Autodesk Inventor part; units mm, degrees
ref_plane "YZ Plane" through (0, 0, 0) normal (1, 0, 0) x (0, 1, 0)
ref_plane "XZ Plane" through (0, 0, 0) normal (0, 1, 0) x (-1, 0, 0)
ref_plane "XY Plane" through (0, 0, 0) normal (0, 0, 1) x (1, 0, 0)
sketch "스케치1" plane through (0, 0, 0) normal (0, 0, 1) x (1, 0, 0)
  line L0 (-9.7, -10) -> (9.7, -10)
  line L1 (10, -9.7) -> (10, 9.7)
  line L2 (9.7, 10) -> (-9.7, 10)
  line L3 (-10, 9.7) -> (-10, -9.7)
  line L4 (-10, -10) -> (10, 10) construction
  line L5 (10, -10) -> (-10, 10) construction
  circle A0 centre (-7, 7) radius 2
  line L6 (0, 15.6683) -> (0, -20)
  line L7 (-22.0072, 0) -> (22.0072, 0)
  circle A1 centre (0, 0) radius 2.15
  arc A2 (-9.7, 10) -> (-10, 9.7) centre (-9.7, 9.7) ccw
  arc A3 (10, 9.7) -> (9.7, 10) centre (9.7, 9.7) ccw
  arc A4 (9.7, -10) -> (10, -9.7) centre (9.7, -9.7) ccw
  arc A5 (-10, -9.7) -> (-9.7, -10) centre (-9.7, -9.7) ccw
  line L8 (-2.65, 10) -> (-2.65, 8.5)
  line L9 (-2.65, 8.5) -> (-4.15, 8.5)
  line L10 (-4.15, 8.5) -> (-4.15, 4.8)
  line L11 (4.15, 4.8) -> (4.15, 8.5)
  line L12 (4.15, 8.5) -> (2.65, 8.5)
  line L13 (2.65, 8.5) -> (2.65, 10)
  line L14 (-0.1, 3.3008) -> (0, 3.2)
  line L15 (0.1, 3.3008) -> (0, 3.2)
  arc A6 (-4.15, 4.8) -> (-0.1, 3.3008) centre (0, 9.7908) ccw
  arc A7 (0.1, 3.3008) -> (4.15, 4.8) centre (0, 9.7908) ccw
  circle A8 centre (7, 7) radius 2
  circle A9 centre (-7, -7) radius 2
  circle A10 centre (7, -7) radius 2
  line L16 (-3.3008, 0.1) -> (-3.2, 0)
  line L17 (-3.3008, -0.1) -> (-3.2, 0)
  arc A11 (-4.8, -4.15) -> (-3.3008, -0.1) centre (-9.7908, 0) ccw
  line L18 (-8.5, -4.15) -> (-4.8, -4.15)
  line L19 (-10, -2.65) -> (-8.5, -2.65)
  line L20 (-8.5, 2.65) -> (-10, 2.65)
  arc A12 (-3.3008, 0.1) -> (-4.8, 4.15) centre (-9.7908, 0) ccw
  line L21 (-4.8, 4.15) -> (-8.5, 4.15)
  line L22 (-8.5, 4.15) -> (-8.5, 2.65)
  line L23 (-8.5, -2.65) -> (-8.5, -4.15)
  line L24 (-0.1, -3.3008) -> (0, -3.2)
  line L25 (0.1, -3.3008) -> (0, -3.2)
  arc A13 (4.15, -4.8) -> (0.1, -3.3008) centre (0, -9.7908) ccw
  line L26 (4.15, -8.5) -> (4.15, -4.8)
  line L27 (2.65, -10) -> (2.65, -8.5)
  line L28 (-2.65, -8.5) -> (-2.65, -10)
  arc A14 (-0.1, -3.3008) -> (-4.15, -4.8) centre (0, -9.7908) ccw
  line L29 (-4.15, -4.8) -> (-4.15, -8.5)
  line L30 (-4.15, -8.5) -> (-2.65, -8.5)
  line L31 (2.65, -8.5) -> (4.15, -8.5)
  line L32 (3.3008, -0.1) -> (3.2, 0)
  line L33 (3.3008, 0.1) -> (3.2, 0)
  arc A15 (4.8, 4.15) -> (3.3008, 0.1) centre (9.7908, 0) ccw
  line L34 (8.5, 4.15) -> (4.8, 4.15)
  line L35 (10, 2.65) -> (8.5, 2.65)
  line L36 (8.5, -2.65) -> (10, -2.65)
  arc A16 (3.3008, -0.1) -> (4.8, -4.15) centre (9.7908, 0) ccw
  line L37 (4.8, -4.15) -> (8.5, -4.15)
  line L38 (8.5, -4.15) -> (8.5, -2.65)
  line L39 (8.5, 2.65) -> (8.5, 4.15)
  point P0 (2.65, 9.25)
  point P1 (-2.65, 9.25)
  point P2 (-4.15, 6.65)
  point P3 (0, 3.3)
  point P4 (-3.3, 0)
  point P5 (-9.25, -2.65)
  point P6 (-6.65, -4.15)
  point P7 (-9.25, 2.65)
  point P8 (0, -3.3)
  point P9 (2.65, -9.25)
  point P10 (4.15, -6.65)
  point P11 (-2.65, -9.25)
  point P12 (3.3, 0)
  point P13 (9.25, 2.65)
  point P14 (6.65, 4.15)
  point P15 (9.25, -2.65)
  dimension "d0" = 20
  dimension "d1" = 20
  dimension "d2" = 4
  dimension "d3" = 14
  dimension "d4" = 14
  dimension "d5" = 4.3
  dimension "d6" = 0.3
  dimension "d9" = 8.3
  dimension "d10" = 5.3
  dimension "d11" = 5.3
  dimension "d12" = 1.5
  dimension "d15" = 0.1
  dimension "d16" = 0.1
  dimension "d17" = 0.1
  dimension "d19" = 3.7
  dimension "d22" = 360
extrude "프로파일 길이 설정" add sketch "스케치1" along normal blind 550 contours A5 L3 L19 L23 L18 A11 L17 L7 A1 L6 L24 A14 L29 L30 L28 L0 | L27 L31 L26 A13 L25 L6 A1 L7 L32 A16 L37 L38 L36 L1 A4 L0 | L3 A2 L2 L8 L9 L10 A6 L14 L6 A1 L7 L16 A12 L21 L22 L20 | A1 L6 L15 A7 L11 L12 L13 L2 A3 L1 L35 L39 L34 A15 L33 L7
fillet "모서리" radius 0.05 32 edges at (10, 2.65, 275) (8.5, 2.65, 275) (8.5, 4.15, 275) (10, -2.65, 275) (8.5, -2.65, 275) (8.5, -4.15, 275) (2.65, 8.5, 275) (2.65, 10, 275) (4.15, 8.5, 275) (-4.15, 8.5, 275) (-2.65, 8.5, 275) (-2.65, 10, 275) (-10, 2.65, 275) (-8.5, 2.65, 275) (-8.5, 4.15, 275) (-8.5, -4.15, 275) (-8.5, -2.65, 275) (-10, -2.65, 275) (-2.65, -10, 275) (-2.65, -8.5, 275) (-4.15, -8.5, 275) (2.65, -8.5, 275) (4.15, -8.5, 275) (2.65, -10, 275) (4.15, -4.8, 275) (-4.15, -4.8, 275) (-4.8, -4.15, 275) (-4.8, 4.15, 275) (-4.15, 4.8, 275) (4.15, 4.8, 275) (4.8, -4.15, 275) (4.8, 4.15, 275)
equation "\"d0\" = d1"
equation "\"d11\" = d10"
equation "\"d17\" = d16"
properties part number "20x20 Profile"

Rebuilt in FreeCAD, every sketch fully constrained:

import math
import FreeCAD as App
import Part
import Sketcher


def edges_at(feature, points):
    """Names of the edges that pass closest to the given points."""
    edges = feature.Shape.Edges
    near = lambda p: min(range(len(edges)), key=lambda i: edges[i].distToShape(Part.Vertex(*p))[0])
    return sorted({f"Edge{near(p) + 1}" for p in points})

doc = App.newDocument("Part")
body = doc.addObject("PartDesign::Body", "Body")

# Sketch on XY plane
sketch1 = body.newObject("Sketcher::SketchObject", "Sketch")
sketch1.AttachmentSupport = (doc.getObject("XY_Plane"), [""])
sketch1.MapMode = "FlatFace"
sketch1.addGeometry([
    Part.ArcOfCircle(Part.Circle(App.Vector(-9.7, -9.7, 0), App.Vector(0, 0, 1), 0.3), math.radians(180), math.radians(270)),  # 0
    Part.LineSegment(App.Vector(-9.7, -10, 0), App.Vector(-2.65, -10, 0)),  # 1
    Part.LineSegment(App.Vector(-2.65, -10, 0), App.Vector(-2.65, -8.5, 0)),  # 2
    Part.LineSegment(App.Vector(-2.65, -8.5, 0), App.Vector(-4.15, -8.5, 0)),  # 3
    Part.LineSegment(App.Vector(-4.15, -8.5, 0), App.Vector(-4.15, -4.8, 0)),  # 4
    Part.ArcOfCircle(Part.Circle(App.Vector(0, -9.7908, 0), App.Vector(0, 0, 1), 6.490808), math.radians(90.882762), math.radians(129.74454)),  # 5
    Part.LineSegment(App.Vector(-0.1, -3.3008, 0), App.Vector(0, -3.2, 0)),  # 6
    Part.LineSegment(App.Vector(0, -3.2, 0), App.Vector(0.1, -3.3008, 0)),  # 7
    Part.ArcOfCircle(Part.Circle(App.Vector(0, -9.7908, 0), App.Vector(0, 0, 1), 6.49077), math.radians(50.25546), math.radians(89.117238)),  # 8
    Part.LineSegment(App.Vector(4.15, -4.8, 0), App.Vector(4.15, -8.5, 0)),  # 9
    Part.LineSegment(App.Vector(4.15, -8.5, 0), App.Vector(2.65, -8.5, 0)),  # 10
    Part.LineSegment(App.Vector(2.65, -8.5, 0), App.Vector(2.65, -10, 0)),  # 11
    Part.LineSegment(App.Vector(2.65, -10, 0), App.Vector(9.7, -10, 0)),  # 12
    Part.ArcOfCircle(Part.Circle(App.Vector(9.7, -9.7, 0), App.Vector(0, 0, 1), 0.3), math.radians(-90), math.radians(0)),  # 13
    Part.LineSegment(App.Vector(10, -9.7, 0), App.Vector(10, -2.65, 0)),  # 14
    Part.LineSegment(App.Vector(10, -2.65, 0), App.Vector(8.5, -2.65, 0)),  # 15
    Part.LineSegment(App.Vector(8.5, -2.65, 0), App.Vector(8.5, -4.15, 0)),  # 16
    Part.LineSegment(App.Vector(8.5, -4.15, 0), App.Vector(4.8, -4.15, 0)),  # 17
    Part.ArcOfCircle(Part.Circle(App.Vector(9.7908, 0, 0), App.Vector(0, 0, 1), 6.490808), math.radians(-179.117238), math.radians(-140.25546)),  # 18
    Part.LineSegment(App.Vector(3.3008, -0.1, 0), App.Vector(3.2, 0, 0)),  # 19
    Part.LineSegment(App.Vector(3.2, 0, 0), App.Vector(3.3008, 0.1, 0)),  # 20
    Part.ArcOfCircle(Part.Circle(App.Vector(9.7908, 0, 0), App.Vector(0, 0, 1), 6.49077), math.radians(140.25546), math.radians(179.117238)),  # 21
    Part.LineSegment(App.Vector(4.8, 4.15, 0), App.Vector(8.5, 4.15, 0)),  # 22
    Part.LineSegment(App.Vector(8.5, 4.15, 0), App.Vector(8.5, 2.65, 0)),  # 23
    Part.LineSegment(App.Vector(8.5, 2.65, 0), App.Vector(10, 2.65, 0)),  # 24
    Part.LineSegment(App.Vector(10, 2.65, 0), App.Vector(10, 9.7, 0)),  # 25
    Part.ArcOfCircle(Part.Circle(App.Vector(9.7, 9.7, 0), App.Vector(0, 0, 1), 0.3), math.radians(0), math.radians(90)),  # 26
    Part.LineSegment(App.Vector(9.7, 10, 0), App.Vector(2.65, 10, 0)),  # 27
    Part.LineSegment(App.Vector(2.65, 10, 0), App.Vector(2.65, 8.5, 0)),  # 28
    Part.LineSegment(App.Vector(2.65, 8.5, 0), App.Vector(4.15, 8.5, 0)),  # 29
    Part.LineSegment(App.Vector(4.15, 8.5, 0), App.Vector(4.15, 4.8, 0)),  # 30
    Part.ArcOfCircle(Part.Circle(App.Vector(0, 9.7908, 0), App.Vector(0, 0, 1), 6.490808), math.radians(-89.117238), math.radians(-50.25546)),  # 31
    Part.LineSegment(App.Vector(0.1, 3.3008, 0), App.Vector(0, 3.2, 0)),  # 32
    Part.LineSegment(App.Vector(0, 3.2, 0), App.Vector(-0.1, 3.3008, 0)),  # 33
    Part.ArcOfCircle(Part.Circle(App.Vector(0, 9.7908, 0), App.Vector(0, 0, 1), 6.49077), math.radians(-129.74454), math.radians(-90.882762)),  # 34
    Part.LineSegment(App.Vector(-4.15, 4.8, 0), App.Vector(-4.15, 8.5, 0)),  # 35
    Part.LineSegment(App.Vector(-4.15, 8.5, 0), App.Vector(-2.65, 8.5, 0)),  # 36
    Part.LineSegment(App.Vector(-2.65, 8.5, 0), App.Vector(-2.65, 10, 0)),  # 37
    Part.LineSegment(App.Vector(-2.65, 10, 0), App.Vector(-9.7, 10, 0)),  # 38
    Part.ArcOfCircle(Part.Circle(App.Vector(-9.7, 9.7, 0), App.Vector(0, 0, 1), 0.3), math.radians(90), math.radians(180)),  # 39
    Part.LineSegment(App.Vector(-10, 9.7, 0), App.Vector(-10, 2.65, 0)),  # 40
    Part.LineSegment(App.Vector(-10, 2.65, 0), App.Vector(-8.5, 2.65, 0)),  # 41
    Part.LineSegment(App.Vector(-8.5, 2.65, 0), App.Vector(-8.5, 4.15, 0)),  # 42
    Part.LineSegment(App.Vector(-8.5, 4.15, 0), App.Vector(-4.8, 4.15, 0)),  # 43
    Part.ArcOfCircle(Part.Circle(App.Vector(-9.7908, 0, 0), App.Vector(0, 0, 1), 6.490808), math.radians(0.882762), math.radians(39.74454)),  # 44
    Part.LineSegment(App.Vector(-3.3008, 0.1, 0), App.Vector(-3.2, 0, 0)),  # 45
    Part.LineSegment(App.Vector(-3.2, 0, 0), App.Vector(-3.3008, -0.1, 0)),  # 46
    Part.ArcOfCircle(Part.Circle(App.Vector(-9.7908, 0, 0), App.Vector(0, 0, 1), 6.49077), math.radians(-39.74454), math.radians(-0.882762)),  # 47
    Part.LineSegment(App.Vector(-4.8, -4.15, 0), App.Vector(-8.5, -4.15, 0)),  # 48
    Part.LineSegment(App.Vector(-8.5, -4.15, 0), App.Vector(-8.5, -2.65, 0)),  # 49
    Part.LineSegment(App.Vector(-8.5, -2.65, 0), App.Vector(-10, -2.65, 0)),  # 50
    Part.LineSegment(App.Vector(-10, -2.65, 0), App.Vector(-10, -9.7, 0)),  # 51
    Part.Circle(App.Vector(0, 0, 0), App.Vector(0, 0, 1), 2.15),  # 52
    Part.Circle(App.Vector(-7, -7, 0), App.Vector(0, 0, 1), 2),  # 53
    Part.Circle(App.Vector(-7, 7, 0), App.Vector(0, 0, 1), 2),  # 54
    Part.Circle(App.Vector(7, -7, 0), App.Vector(0, 0, 1), 2),  # 55
    Part.Circle(App.Vector(7, 7, 0), App.Vector(0, 0, 1), 2),  # 56
], False)
sketch1.addConstraint([
    Sketcher.Constraint("Tangent", 0, 2, 1, 1),
    Sketcher.Constraint("Coincident", 1, 2, 2, 1),
    Sketcher.Constraint("Coincident", 2, 2, 3, 1),
    Sketcher.Constraint("Coincident", 3, 2, 4, 1),
    Sketcher.Constraint("Coincident", 4, 2, 5, 2),
    Sketcher.Constraint("Coincident", 5, 1, 6, 1),
    Sketcher.Constraint("Coincident", 6, 2, 7, 1),
    Sketcher.Constraint("Coincident", 7, 2, 8, 2),
    Sketcher.Constraint("Coincident", 8, 1, 9, 1),
    Sketcher.Constraint("Coincident", 9, 2, 10, 1),
    Sketcher.Constraint("Coincident", 10, 2, 11, 1),
    Sketcher.Constraint("Coincident", 11, 2, 12, 1),
    Sketcher.Constraint("Tangent", 12, 2, 13, 1),
    Sketcher.Constraint("Tangent", 13, 2, 14, 1),
    Sketcher.Constraint("Coincident", 14, 2, 15, 1),
    Sketcher.Constraint("Coincident", 15, 2, 16, 1),
    Sketcher.Constraint("Coincident", 16, 2, 17, 1),
    Sketcher.Constraint("Coincident", 17, 2, 18, 2),
    Sketcher.Constraint("Coincident", 18, 1, 19, 1),
    Sketcher.Constraint("Coincident", 19, 2, 20, 1),
    Sketcher.Constraint("Coincident", 20, 2, 21, 2),
    Sketcher.Constraint("Coincident", 21, 1, 22, 1),
    Sketcher.Constraint("Coincident", 22, 2, 23, 1),
    Sketcher.Constraint("Coincident", 23, 2, 24, 1),
    Sketcher.Constraint("Coincident", 24, 2, 25, 1),
    Sketcher.Constraint("Tangent", 25, 2, 26, 1),
    Sketcher.Constraint("Tangent", 26, 2, 27, 1),
    Sketcher.Constraint("Coincident", 27, 2, 28, 1),
    Sketcher.Constraint("Coincident", 28, 2, 29, 1),
    Sketcher.Constraint("Coincident", 29, 2, 30, 1),
    Sketcher.Constraint("Coincident", 30, 2, 31, 2),
    Sketcher.Constraint("Coincident", 31, 1, 32, 1),
    Sketcher.Constraint("Coincident", 32, 2, 33, 1),
    Sketcher.Constraint("Coincident", 33, 2, 34, 2),
    Sketcher.Constraint("Coincident", 34, 1, 35, 1),
    Sketcher.Constraint("Coincident", 35, 2, 36, 1),
    Sketcher.Constraint("Coincident", 36, 2, 37, 1),
    Sketcher.Constraint("Coincident", 37, 2, 38, 1),
    Sketcher.Constraint("Tangent", 38, 2, 39, 1),
    Sketcher.Constraint("Tangent", 39, 2, 40, 1),
    Sketcher.Constraint("Coincident", 40, 2, 41, 1),
    Sketcher.Constraint("Coincident", 41, 2, 42, 1),
    Sketcher.Constraint("Coincident", 42, 2, 43, 1),
    Sketcher.Constraint("Coincident", 43, 2, 44, 2),
    Sketcher.Constraint("Coincident", 44, 1, 45, 1),
    Sketcher.Constraint("Coincident", 45, 2, 46, 1),
    Sketcher.Constraint("Coincident", 46, 2, 47, 2),
    Sketcher.Constraint("Coincident", 47, 1, 48, 1),
    Sketcher.Constraint("Coincident", 48, 2, 49, 1),
    Sketcher.Constraint("Coincident", 49, 2, 50, 1),
    Sketcher.Constraint("Coincident", 50, 2, 51, 1),
    Sketcher.Constraint("Tangent", 51, 2, 0, 1),
    Sketcher.Constraint("Horizontal", 1),
    Sketcher.Constraint("Vertical", 2),
    Sketcher.Constraint("Horizontal", 3),
    Sketcher.Constraint("Vertical", 4),
    Sketcher.Constraint("Vertical", 9),
    Sketcher.Constraint("Horizontal", 10),
    Sketcher.Constraint("Vertical", 11),
    Sketcher.Constraint("Horizontal", 12),
    Sketcher.Constraint("Vertical", 14),
    Sketcher.Constraint("Horizontal", 15),
    Sketcher.Constraint("Vertical", 16),
    Sketcher.Constraint("Horizontal", 17),
    Sketcher.Constraint("Horizontal", 22),
    Sketcher.Constraint("Vertical", 23),
    Sketcher.Constraint("Horizontal", 24),
    Sketcher.Constraint("Vertical", 25),
    Sketcher.Constraint("Horizontal", 27),
    Sketcher.Constraint("Vertical", 28),
    Sketcher.Constraint("Horizontal", 29),
    Sketcher.Constraint("Vertical", 30),
    Sketcher.Constraint("Vertical", 35),
    Sketcher.Constraint("Horizontal", 36),
    Sketcher.Constraint("Vertical", 37),
    Sketcher.Constraint("Horizontal", 38),
    Sketcher.Constraint("Vertical", 40),
    Sketcher.Constraint("Horizontal", 41),
    Sketcher.Constraint("Vertical", 42),
    Sketcher.Constraint("Horizontal", 43),
    Sketcher.Constraint("Horizontal", 48),
    Sketcher.Constraint("Vertical", 49),
    Sketcher.Constraint("Horizontal", 50),
    Sketcher.Constraint("Vertical", 51),
    Sketcher.Constraint("Coincident", 52, 3, -1, 1),
    Sketcher.Constraint("Coincident", 8, 3, 5, 3),
    Sketcher.Constraint("Coincident", 21, 3, 18, 3),
    Sketcher.Constraint("Coincident", 34, 3, 31, 3),
    Sketcher.Constraint("Coincident", 47, 3, 44, 3),
    Sketcher.Constraint("Equal", 5, 8),
    Sketcher.Constraint("Equal", 0, 13),
    Sketcher.Constraint("Equal", 8, 18),
    Sketcher.Constraint("Equal", 18, 21),
    Sketcher.Constraint("Equal", 13, 26),
    Sketcher.Constraint("Equal", 21, 31),
    Sketcher.Constraint("Equal", 31, 34),
    Sketcher.Constraint("Equal", 26, 39),
    Sketcher.Constraint("Equal", 34, 44),
    Sketcher.Constraint("Equal", 44, 47),
    Sketcher.Constraint("Equal", 53, 54),
    Sketcher.Constraint("Equal", 54, 55),
    Sketcher.Constraint("Equal", 55, 56),
    Sketcher.Constraint("Symmetric", 0, 3, 26, 3, -1, 1),
    Sketcher.Constraint("Symmetric", 5, 3, 31, 3, -1, 1),
    Sketcher.Constraint("Symmetric", 13, 3, 39, 3, -1, 1),
    Sketcher.Constraint("Symmetric", 18, 3, 44, 3, -1, 1),
    Sketcher.Constraint("Symmetric", 54, 3, 55, 3, -1, 1),
    Sketcher.Constraint("Symmetric", 53, 3, 56, 3, -1, 1),
    Sketcher.Constraint("Symmetric", 2, 2, 28, 2, -1, 1),
    Sketcher.Constraint("Symmetric", 6, 2, 32, 2, -1, 1),
    Sketcher.Constraint("Symmetric", 9, 2, 35, 2, -1, 1),
    Sketcher.Constraint("Symmetric", 15, 2, 41, 2, -1, 1),
    Sketcher.Constraint("Symmetric", 19, 2, 45, 2, -1, 1),
    Sketcher.Constraint("Symmetric", 22, 2, 48, 2, -1, 1),
    Sketcher.Constraint("Symmetric", 0, 3, 13, 3, -2),
    Sketcher.Constraint("Symmetric", 53, 3, 55, 3, -2),
    Sketcher.Constraint("Symmetric", 5, 1, 7, 2, -2),
    Sketcher.Constraint("Symmetric", 3, 2, 9, 2, -2),
    Sketcher.Constraint("Symmetric", 23, 2, 41, 2, -2),
    Sketcher.Constraint("Symmetric", 21, 1, 43, 2, -2),
    Sketcher.Constraint("PointOnObject", 6, 2, -2),
    Sketcher.Constraint("PointOnObject", 19, 2, -1),
    Sketcher.Constraint("Perpendicular", 6, 19),
    Sketcher.Constraint("Perpendicular", 7, 20),
    Sketcher.Constraint("Perpendicular", 19, 32),
    Sketcher.Constraint("Perpendicular", 20, 33),
    Sketcher.Constraint("Perpendicular", 32, 45),
    Sketcher.Constraint("Perpendicular", 33, 46),
    Sketcher.Constraint("Horizontal", 30, 2, 34, 1),
    Sketcher.Constraint("Horizontal", 17, 2, 47, 1),
    Sketcher.Constraint("Horizontal", 15, 2, 49, 2),
    Sketcher.Constraint("Vertical", 11, 2, 27, 2),
    Sketcher.Constraint("Vertical", 2, 2, 36, 2),
    Sketcher.Constraint("Equal", 10, 15),
    Sketcher.Constraint("Equal", 50, 2),
    Sketcher.Constraint("Equal", 48, 4),
    Sketcher.Constraint("Equal", 38, 14),
    Sketcher.Constraint("Equal", 11, 16),
    Sketcher.Constraint("Equal", 7, 19),
    Sketcher.Constraint("Diameter", 53, 4.0),
    Sketcher.Constraint("Diameter", 52, 4.3),
    Sketcher.Constraint("Radius", 0, 0.3),
    Sketcher.Constraint("DistanceX", 3, 2, 3, 1, 1.5),
    Sketcher.Constraint("DistanceX", 17, 2, 17, 1, 3.7),
    Sketcher.Constraint("DistanceX", 5, 1, -1, 1, 0.1),
    Sketcher.Constraint("DistanceX", 53, 3, -1, 1, 7.0),
    Sketcher.Constraint("DistanceY", 53, 3, -1, 1, 7.0),
    Sketcher.Constraint("DistanceY", 0, 2, -1, 1, 10.0),
    Sketcher.Constraint("DistanceX", -1, 1, 13, 2, 10.0),
    Sketcher.Constraint("DistanceX", 1, 1, 1, 2, 7.05),
    Sketcher.Constraint("DistanceY", 6, 2, -1, 1, 3.2),
    Sketcher.Constraint("Radius", 5, 6.4908),
])
pad1 = body.newObject("PartDesign::Pad", "Pad")
pad1.Profile = sketch1
pad1.Length = 550
doc.recompute()

fillet = body.newObject("PartDesign::Fillet", "Fillet")
fillet.Base = (pad1, edges_at(pad1, [
    (10, 2.65, 275),
    (8.5, 2.65, 275),
    (8.5, 4.15, 275),
    (10, -2.65, 275),
    (8.5, -2.65, 275),
    (8.5, -4.15, 275),
    (2.65, 8.5, 275),
    (2.65, 10, 275),
    (4.15, 8.5, 275),
    (-4.15, 8.5, 275),
    (-2.65, 8.5, 275),
    (-2.65, 10, 275),
    (-10, 2.65, 275),
    (-8.5, 2.65, 275),
    (-8.5, 4.15, 275),
    (-8.5, -4.15, 275),
    (-8.5, -2.65, 275),
    (-10, -2.65, 275),
    (-2.65, -10, 275),
    (-2.65, -8.5, 275),
    (-4.15, -8.5, 275),
    (2.65, -8.5, 275),
    (4.15, -8.5, 275),
    (2.65, -10, 275),
    (4.15, -4.8, 275),
    (-4.15, -4.8, 275),
    (-4.8, -4.15, 275),
    (-4.8, 4.15, 275),
    (-4.15, 4.8, 275),
    (4.15, 4.8, 275),
    (4.8, -4.15, 275),
    (4.8, 4.15, 275),
]))
fillet.Radius = 0.05

doc.recompute()
